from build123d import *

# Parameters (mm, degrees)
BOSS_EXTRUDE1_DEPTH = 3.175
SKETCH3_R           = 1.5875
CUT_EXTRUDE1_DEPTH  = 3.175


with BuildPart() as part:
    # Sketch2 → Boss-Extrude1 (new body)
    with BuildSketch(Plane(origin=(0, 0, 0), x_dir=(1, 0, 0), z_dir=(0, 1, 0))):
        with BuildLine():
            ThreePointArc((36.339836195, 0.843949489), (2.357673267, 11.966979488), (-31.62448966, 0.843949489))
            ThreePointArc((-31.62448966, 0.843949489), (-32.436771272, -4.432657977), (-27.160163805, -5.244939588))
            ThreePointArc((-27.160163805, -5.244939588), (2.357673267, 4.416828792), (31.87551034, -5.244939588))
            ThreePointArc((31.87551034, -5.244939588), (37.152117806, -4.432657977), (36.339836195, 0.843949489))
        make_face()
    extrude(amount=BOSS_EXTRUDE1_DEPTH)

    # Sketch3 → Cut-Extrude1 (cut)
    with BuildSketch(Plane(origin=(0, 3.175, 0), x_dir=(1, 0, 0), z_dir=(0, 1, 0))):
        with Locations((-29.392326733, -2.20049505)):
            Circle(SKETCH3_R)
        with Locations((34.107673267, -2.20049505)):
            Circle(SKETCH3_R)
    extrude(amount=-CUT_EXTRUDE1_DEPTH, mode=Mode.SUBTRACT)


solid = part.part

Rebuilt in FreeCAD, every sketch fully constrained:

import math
import FreeCAD as App
import Part
import Sketcher
from FreeCAD import Vector
Q = App.Units.Quantity

doc = App.newDocument("Part")
params = doc.addObject("Spreadsheet::Sheet", "Params")
for row, (alias, value) in enumerate([
    ("pad1_length", "0.125 in"),
    ("sketch2_diameter", "0.125 in"),
    ("pocket1_length", "0.125 in"),
], start=1):
    params.set(f"A{row}", alias)
    params.set(f"B{row}", "=" + value)
    params.setAlias(f"B{row}", alias)

body = doc.addObject("PartDesign::Body", "Body")

# Sketch on XZ plane
sketch1 = body.newObject("Sketcher::SketchObject", "Sketch")
sketch1.AttachmentSupport = (doc.getObject("XZ_Plane"), [""])
sketch1.MapMode = "FlatFace"
sketch1.addGeometry([
    Part.ArcOfCircle(Part.Circle(Vector(2.357673, 45.504285, 0), Vector(0, 0, 1), 57.471264), math.radians(-126.248578), math.radians(-53.751422)),
    Part.ArcOfCircle(Part.Circle(Vector(-29.392327, 2.200495, 0), Vector(0, 0, 1), 3.775075), math.radians(53.751422), math.radians(233.751422)),
    Part.ArcOfCircle(Part.Circle(Vector(2.357673, 45.504285, 0), Vector(0, 0, 1), 49.921114), math.radians(-126.248578), math.radians(-53.751422)),
    Part.ArcOfCircle(Part.Circle(Vector(34.107673, 2.200495, 0), Vector(0, 0, 1), 3.775075), math.radians(-53.751422), math.radians(126.248578)),
], False)
sketch1.addConstraint([
    Sketcher.Constraint("Tangent", 0, 1, 1, 2),
    Sketcher.Constraint("Tangent", 1, 1, 2, 1),
    Sketcher.Constraint("Tangent", 2, 2, 3, 2),
    Sketcher.Constraint("Tangent", 3, 1, 0, 2),
    Sketcher.Constraint("Coincident", 2, 3, 0, 3),
    Sketcher.Constraint("Horizontal", 1, 3, 3, 3),
    Sketcher.Constraint("DistanceX", 1, 3, 3, 3, Q("2.5 in")),
    Sketcher.Constraint("Radius", 0, Q("57.471264 mm")),
    Sketcher.Constraint("Radius", 1, Q("3.775075 mm")),
    Sketcher.Constraint("DistanceX", 0, 1, -1, 1, Q("31.62449 mm")),
    Sketcher.Constraint("DistanceY", 0, 1, -1, 1, Q("0.843949 mm")),
])
pad1 = body.newObject("PartDesign::Pad", "Pad")
pad1.Profile = sketch1
pad1.setExpression("Length", "Params.pad1_length")
pad1.Reversed = True

# Sketch on XZ plane
sketch2 = body.newObject("Sketcher::SketchObject", "Sketch001")
sketch2.AttachmentSupport = (doc.getObject("XZ_Plane"), [""])
sketch2.MapMode = "FlatFace"
sketch2.AttachmentOffset = App.Placement(Vector(0, 0, -0.125 * 25.4), App.Rotation())
sketch2.addGeometry([
    Part.Circle(Vector(-29.392327, 2.200495, 0), Vector(0, 0, 1), 1.5875),
    Part.Circle(Vector(34.107673, 2.200495, 0), Vector(0, 0, 1), 1.5875),
], False)
sketch2.addConstraint([
    Sketcher.Constraint("Equal", 0, 1),
    Sketcher.Constraint("Horizontal", 0, 3, 1, 3),
    Sketcher.Constraint("Diameter", 0, Q("0.125 in")),
    Sketcher.Constraint("DistanceX", 0, 3, 1, 3, Q("2.5 in")),
    Sketcher.Constraint("DistanceX", 0, 3, -1, 1, Q("29.392327 mm")),
    Sketcher.Constraint("DistanceY", -1, 1, 0, 3, Q("2.200495 mm")),
])
sketch2.setExpression("Constraints[2]", "Params.sketch2_diameter")
pocket1 = body.newObject("PartDesign::Pocket", "Pocket")
pocket1.Profile = sketch2
pocket1.setExpression("Length", "Params.pocket1_length")
pocket1.Reversed = True

doc.recompute()
